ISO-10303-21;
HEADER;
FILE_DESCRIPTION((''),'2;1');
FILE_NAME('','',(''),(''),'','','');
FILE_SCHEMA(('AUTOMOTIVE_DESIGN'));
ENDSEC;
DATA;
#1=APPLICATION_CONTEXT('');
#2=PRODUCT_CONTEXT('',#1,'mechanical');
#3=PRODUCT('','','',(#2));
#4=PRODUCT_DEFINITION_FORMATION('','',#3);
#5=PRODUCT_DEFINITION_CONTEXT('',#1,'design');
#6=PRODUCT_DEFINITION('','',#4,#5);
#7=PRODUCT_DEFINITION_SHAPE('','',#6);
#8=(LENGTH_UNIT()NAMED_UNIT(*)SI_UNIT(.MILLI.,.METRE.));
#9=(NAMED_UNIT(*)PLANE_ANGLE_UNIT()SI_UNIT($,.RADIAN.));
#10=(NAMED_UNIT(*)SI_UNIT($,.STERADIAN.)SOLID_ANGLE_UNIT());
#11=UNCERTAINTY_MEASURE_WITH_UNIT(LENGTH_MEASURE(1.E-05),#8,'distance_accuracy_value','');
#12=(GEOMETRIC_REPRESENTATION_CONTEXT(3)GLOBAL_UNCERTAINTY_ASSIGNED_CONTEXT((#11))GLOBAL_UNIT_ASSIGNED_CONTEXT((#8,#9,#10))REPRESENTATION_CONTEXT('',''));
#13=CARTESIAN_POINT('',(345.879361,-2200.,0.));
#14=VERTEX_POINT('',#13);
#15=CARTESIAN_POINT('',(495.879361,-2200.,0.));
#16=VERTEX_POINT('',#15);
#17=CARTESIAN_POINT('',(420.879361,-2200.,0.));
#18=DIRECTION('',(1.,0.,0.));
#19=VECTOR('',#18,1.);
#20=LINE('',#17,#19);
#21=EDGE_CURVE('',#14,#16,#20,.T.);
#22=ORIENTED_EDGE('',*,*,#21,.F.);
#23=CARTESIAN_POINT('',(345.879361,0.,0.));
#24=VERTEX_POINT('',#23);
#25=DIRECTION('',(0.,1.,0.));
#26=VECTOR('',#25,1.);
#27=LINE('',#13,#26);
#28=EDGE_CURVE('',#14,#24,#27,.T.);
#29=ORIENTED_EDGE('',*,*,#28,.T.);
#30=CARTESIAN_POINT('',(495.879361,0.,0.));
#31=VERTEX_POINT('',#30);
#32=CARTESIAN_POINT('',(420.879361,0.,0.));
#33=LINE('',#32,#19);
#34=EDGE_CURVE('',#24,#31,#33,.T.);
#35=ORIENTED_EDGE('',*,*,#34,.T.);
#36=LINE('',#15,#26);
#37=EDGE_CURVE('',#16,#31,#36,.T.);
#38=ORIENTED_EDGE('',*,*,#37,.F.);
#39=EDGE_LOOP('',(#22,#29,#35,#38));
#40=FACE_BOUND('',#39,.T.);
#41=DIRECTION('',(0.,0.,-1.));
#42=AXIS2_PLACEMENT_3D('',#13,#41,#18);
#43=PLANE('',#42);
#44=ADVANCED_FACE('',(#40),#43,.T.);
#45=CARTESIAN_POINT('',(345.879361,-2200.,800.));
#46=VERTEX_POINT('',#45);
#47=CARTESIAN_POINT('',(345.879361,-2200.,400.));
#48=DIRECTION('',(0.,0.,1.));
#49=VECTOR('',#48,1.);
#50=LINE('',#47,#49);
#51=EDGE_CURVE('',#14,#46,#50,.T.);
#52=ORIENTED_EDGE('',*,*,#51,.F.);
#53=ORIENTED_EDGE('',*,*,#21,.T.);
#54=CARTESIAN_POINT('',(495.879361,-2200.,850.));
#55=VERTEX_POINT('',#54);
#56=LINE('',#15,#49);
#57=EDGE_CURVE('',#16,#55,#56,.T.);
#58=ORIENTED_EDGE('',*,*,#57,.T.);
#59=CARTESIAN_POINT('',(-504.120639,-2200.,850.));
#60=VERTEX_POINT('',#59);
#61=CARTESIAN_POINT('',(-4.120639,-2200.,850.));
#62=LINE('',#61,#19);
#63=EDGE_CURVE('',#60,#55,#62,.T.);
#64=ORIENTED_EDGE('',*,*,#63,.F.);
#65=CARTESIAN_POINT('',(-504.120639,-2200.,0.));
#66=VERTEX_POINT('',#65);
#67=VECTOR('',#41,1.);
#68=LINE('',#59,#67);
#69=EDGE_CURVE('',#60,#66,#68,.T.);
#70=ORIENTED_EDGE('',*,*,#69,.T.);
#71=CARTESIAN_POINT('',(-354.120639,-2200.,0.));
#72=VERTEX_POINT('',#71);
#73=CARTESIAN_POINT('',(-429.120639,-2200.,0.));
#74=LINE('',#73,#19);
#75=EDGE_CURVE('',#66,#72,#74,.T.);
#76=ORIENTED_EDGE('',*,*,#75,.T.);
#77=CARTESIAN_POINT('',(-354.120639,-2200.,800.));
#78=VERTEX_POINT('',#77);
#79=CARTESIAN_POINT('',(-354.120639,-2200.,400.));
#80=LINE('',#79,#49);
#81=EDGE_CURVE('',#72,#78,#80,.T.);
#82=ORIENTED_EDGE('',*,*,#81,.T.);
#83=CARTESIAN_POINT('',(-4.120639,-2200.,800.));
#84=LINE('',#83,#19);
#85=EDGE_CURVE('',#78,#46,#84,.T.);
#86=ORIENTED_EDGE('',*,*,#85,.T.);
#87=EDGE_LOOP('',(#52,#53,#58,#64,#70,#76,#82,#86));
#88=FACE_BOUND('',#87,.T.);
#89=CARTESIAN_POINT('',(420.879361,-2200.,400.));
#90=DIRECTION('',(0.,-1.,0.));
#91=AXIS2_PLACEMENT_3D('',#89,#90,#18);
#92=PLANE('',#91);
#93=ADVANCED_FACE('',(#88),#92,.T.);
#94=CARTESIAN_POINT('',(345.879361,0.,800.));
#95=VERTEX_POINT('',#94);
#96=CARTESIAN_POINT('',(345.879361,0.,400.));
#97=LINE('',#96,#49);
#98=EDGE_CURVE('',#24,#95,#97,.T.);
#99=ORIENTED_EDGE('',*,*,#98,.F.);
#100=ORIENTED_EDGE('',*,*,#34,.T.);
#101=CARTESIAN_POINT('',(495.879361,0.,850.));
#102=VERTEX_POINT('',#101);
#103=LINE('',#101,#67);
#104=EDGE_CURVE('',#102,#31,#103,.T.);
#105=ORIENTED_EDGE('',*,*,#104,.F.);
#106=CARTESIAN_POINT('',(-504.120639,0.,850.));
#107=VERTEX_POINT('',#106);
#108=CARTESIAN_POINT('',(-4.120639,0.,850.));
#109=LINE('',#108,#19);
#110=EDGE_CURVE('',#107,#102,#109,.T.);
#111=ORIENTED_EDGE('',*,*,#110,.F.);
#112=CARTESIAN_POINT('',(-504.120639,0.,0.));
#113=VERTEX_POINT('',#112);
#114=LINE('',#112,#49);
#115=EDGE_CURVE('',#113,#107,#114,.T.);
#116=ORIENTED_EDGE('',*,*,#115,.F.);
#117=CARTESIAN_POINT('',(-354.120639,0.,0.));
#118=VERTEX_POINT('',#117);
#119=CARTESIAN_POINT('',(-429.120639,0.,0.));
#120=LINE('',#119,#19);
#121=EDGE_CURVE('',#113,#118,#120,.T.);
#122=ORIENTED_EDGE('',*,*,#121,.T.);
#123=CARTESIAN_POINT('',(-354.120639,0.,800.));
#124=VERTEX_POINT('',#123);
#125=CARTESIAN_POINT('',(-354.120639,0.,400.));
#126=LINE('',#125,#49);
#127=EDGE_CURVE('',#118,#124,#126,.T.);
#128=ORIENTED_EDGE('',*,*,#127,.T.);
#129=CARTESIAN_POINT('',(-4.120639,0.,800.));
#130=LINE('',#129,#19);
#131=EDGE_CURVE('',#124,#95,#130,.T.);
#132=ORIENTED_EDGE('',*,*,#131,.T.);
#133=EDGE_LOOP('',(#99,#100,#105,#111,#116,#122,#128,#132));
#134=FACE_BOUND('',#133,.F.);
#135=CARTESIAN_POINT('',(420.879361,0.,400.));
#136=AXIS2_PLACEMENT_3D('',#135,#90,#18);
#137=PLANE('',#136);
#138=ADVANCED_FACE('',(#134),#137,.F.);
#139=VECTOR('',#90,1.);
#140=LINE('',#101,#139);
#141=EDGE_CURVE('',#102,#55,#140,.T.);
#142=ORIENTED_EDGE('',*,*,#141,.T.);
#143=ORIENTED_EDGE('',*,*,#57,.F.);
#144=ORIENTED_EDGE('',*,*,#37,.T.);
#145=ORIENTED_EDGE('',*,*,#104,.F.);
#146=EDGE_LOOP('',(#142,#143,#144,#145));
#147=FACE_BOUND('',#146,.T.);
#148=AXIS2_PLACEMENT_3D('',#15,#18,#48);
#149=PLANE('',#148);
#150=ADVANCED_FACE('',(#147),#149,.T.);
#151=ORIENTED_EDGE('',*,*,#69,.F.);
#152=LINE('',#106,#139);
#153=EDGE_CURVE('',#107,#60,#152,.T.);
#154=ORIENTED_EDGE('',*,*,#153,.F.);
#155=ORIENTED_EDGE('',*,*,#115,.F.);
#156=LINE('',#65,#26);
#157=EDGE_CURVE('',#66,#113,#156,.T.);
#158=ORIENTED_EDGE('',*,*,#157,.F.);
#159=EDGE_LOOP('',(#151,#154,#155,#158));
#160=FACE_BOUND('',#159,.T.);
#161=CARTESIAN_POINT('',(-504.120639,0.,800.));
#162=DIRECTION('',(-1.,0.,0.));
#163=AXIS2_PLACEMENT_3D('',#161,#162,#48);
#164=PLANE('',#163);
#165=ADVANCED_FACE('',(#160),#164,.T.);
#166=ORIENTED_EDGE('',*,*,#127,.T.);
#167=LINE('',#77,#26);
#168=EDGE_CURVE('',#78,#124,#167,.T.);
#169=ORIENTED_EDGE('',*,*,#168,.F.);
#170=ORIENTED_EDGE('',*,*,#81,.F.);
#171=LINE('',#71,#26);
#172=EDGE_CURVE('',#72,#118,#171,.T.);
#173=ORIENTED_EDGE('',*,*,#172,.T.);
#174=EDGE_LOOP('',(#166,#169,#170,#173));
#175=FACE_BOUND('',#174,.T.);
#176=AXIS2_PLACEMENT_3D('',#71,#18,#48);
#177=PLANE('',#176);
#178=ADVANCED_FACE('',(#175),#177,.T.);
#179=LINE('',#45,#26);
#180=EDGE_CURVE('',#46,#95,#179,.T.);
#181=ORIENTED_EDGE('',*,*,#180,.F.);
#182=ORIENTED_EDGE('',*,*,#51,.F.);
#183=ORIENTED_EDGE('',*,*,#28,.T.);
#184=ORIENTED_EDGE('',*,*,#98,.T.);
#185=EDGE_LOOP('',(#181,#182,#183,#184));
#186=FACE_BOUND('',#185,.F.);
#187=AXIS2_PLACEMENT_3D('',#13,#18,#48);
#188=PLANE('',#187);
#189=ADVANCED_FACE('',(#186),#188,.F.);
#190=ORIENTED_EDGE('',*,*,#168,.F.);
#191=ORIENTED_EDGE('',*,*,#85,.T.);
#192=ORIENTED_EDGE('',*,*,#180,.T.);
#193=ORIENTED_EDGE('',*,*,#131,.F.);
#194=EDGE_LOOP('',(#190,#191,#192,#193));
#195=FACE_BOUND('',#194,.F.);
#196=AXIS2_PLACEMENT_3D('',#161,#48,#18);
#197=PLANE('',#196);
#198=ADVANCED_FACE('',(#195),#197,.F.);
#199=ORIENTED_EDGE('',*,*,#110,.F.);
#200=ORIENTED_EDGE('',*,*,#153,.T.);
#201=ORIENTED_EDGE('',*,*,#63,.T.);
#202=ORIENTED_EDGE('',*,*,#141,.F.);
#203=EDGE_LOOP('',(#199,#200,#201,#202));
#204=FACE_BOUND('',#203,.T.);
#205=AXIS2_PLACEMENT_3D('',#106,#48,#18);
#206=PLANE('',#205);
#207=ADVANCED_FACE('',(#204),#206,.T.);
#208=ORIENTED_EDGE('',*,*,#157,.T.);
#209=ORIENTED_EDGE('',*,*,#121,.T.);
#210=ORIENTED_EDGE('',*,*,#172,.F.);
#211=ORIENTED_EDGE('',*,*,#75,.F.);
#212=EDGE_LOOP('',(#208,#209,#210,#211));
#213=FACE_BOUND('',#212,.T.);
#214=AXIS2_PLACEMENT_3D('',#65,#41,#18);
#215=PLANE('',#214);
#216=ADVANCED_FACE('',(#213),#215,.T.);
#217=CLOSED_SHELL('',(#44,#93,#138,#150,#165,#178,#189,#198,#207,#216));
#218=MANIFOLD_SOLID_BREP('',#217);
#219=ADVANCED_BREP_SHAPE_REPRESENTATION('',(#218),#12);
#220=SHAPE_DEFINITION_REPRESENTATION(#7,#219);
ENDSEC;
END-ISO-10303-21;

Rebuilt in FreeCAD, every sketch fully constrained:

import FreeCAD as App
import Part
import Sketcher
from FreeCAD import Vector
Q = App.Units.Quantity

doc = App.newDocument("Part")
params = doc.addObject("Spreadsheet::Sheet", "Params")
for row, (alias, value) in enumerate([
    ("sketch1_width", "1000 mm"),
    ("sketch1_height", "50 mm"),
    ("pad1_length", "2200 mm"),
    ("sketch2_width", "150 mm"),
    ("sketch2_height", "800 mm"),
    ("pad2_length", "2200 mm"),
], start=1):
    params.set(f"A{row}", alias)
    params.set(f"B{row}", "=" + value)
    params.setAlias(f"B{row}", alias)

body = doc.addObject("PartDesign::Body", "Body")

# Sketch on XZ plane
sketch1 = body.newObject("Sketcher::SketchObject", "Sketch")
sketch1.AttachmentSupport = (doc.getObject("XZ_Plane"), [""])
sketch1.MapMode = "FlatFace"
sketch1.addGeometry([
    Part.LineSegment(Vector(-504, 850, 0), Vector(-504, 800, 0)),
    Part.LineSegment(Vector(-504, 800, 0), Vector(496, 800, 0)),
    Part.LineSegment(Vector(496, 800, 0), Vector(496, 850, 0)),
    Part.LineSegment(Vector(496, 850, 0), Vector(-504, 850, 0)),
], False)
sketch1.addConstraint([
    Sketcher.Constraint("Coincident", 0, 2, 1, 1),
    Sketcher.Constraint("Coincident", 1, 2, 2, 1),
    Sketcher.Constraint("Coincident", 2, 2, 3, 1),
    Sketcher.Constraint("Coincident", 3, 2, 0, 1),
    Sketcher.Constraint("Vertical", 0),
    Sketcher.Constraint("Horizontal", 1),
    Sketcher.Constraint("Vertical", 2),
    Sketcher.Constraint("Horizontal", 3),
    Sketcher.Constraint("DistanceX", 1, 1, 1, 2, Q("1000 mm")),
    Sketcher.Constraint("DistanceY", 0, 2, 0, 1, Q("50 mm")),
    Sketcher.Constraint("DistanceY", -1, 1, 0, 2, Q("800 mm")),
    Sketcher.Constraint("DistanceX", 0, 2, -1, 1, Q("504.120639 mm")),
])
sketch1.setExpression("Constraints[8]", "Params.sketch1_width")
sketch1.setExpression("Constraints[9]", "Params.sketch1_height")
pad1 = body.newObject("PartDesign::Pad", "Pad")
pad1.Profile = sketch1
pad1.setExpression("Length", "Params.pad1_length")

# Sketch on XZ plane
sketch2 = body.newObject("Sketcher::SketchObject", "Sketch001")
sketch2.AttachmentSupport = (doc.getObject("XZ_Plane"), [""])
sketch2.MapMode = "FlatFace"
sketch2.AttachmentOffset = App.Placement(Vector(0, 0, 2200), App.Rotation())
sketch2.addGeometry([
    Part.LineSegment(Vector(346, 800, 0), Vector(346, 0, 0)),  # 0
    Part.LineSegment(Vector(346, 0, 0), Vector(496, 0, 0)),  # 1
    Part.LineSegment(Vector(496, 0, 0), Vector(496, 800, 0)),  # 2
    Part.LineSegment(Vector(496, 800, 0), Vector(346, 800, 0)),  # 3
    Part.LineSegment(Vector(-504, 800, 0), Vector(-504, 0, 0)),  # 4
    Part.LineSegment(Vector(-504, 0, 0), Vector(-354, 0, 0)),  # 5
    Part.LineSegment(Vector(-354, 0, 0), Vector(-354, 800, 0)),  # 6
    Part.LineSegment(Vector(-354, 800, 0), Vector(-504, 800, 0)),  # 7
], False)
sketch2.addConstraint([
    Sketcher.Constraint("Coincident", 0, 2, 1, 1),
    Sketcher.Constraint("Coincident", 1, 2, 2, 1),
    Sketcher.Constraint("Coincident", 2, 2, 3, 1),
    Sketcher.Constraint("Coincident", 3, 2, 0, 1),
    Sketcher.Constraint("Coincident", 4, 2, 5, 1),
    Sketcher.Constraint("Coincident", 5, 2, 6, 1),
    Sketcher.Constraint("Coincident", 6, 2, 7, 1),
    Sketcher.Constraint("Coincident", 7, 2, 4, 1),
    Sketcher.Constraint("Vertical", 0),
    Sketcher.Constraint("Horizontal", 1),
    Sketcher.Constraint("Vertical", 2),
    Sketcher.Constraint("Horizontal", 3),
    Sketcher.Constraint("Vertical", 4),
    Sketcher.Constraint("Horizontal", 5),
    Sketcher.Constraint("Vertical", 6),
    Sketcher.Constraint("Horizontal", 7),
    Sketcher.Constraint("PointOnObject", 0, 2, -1),
    Sketcher.Constraint("PointOnObject", 4, 2, -1),
    Sketcher.Constraint("Horizontal", 3, 2, 6, 2),
    Sketcher.Constraint("Equal", 3, 5),
    Sketcher.Constraint("DistanceX", 1, 1, 1, 2, Q("150 mm")),
    Sketcher.Constraint("DistanceY", 0, 2, 0, 1, Q("800 mm")),
    Sketcher.Constraint("DistanceX", 4, 2, 0, 2, Q("850 mm")),
    Sketcher.Constraint("DistanceX", -1, 1, 0, 2, Q("345.879361 mm")),
])
sketch2.setExpression("Constraints[20]", "Params.sketch2_width")
sketch2.setExpression("Constraints[21]", "Params.sketch2_height")
pad2 = body.newObject("PartDesign::Pad", "Pad001")
pad2.Profile = sketch2
pad2.setExpression("Length", "Params.pad2_length")
pad2.Reversed = True

doc.recompute()
